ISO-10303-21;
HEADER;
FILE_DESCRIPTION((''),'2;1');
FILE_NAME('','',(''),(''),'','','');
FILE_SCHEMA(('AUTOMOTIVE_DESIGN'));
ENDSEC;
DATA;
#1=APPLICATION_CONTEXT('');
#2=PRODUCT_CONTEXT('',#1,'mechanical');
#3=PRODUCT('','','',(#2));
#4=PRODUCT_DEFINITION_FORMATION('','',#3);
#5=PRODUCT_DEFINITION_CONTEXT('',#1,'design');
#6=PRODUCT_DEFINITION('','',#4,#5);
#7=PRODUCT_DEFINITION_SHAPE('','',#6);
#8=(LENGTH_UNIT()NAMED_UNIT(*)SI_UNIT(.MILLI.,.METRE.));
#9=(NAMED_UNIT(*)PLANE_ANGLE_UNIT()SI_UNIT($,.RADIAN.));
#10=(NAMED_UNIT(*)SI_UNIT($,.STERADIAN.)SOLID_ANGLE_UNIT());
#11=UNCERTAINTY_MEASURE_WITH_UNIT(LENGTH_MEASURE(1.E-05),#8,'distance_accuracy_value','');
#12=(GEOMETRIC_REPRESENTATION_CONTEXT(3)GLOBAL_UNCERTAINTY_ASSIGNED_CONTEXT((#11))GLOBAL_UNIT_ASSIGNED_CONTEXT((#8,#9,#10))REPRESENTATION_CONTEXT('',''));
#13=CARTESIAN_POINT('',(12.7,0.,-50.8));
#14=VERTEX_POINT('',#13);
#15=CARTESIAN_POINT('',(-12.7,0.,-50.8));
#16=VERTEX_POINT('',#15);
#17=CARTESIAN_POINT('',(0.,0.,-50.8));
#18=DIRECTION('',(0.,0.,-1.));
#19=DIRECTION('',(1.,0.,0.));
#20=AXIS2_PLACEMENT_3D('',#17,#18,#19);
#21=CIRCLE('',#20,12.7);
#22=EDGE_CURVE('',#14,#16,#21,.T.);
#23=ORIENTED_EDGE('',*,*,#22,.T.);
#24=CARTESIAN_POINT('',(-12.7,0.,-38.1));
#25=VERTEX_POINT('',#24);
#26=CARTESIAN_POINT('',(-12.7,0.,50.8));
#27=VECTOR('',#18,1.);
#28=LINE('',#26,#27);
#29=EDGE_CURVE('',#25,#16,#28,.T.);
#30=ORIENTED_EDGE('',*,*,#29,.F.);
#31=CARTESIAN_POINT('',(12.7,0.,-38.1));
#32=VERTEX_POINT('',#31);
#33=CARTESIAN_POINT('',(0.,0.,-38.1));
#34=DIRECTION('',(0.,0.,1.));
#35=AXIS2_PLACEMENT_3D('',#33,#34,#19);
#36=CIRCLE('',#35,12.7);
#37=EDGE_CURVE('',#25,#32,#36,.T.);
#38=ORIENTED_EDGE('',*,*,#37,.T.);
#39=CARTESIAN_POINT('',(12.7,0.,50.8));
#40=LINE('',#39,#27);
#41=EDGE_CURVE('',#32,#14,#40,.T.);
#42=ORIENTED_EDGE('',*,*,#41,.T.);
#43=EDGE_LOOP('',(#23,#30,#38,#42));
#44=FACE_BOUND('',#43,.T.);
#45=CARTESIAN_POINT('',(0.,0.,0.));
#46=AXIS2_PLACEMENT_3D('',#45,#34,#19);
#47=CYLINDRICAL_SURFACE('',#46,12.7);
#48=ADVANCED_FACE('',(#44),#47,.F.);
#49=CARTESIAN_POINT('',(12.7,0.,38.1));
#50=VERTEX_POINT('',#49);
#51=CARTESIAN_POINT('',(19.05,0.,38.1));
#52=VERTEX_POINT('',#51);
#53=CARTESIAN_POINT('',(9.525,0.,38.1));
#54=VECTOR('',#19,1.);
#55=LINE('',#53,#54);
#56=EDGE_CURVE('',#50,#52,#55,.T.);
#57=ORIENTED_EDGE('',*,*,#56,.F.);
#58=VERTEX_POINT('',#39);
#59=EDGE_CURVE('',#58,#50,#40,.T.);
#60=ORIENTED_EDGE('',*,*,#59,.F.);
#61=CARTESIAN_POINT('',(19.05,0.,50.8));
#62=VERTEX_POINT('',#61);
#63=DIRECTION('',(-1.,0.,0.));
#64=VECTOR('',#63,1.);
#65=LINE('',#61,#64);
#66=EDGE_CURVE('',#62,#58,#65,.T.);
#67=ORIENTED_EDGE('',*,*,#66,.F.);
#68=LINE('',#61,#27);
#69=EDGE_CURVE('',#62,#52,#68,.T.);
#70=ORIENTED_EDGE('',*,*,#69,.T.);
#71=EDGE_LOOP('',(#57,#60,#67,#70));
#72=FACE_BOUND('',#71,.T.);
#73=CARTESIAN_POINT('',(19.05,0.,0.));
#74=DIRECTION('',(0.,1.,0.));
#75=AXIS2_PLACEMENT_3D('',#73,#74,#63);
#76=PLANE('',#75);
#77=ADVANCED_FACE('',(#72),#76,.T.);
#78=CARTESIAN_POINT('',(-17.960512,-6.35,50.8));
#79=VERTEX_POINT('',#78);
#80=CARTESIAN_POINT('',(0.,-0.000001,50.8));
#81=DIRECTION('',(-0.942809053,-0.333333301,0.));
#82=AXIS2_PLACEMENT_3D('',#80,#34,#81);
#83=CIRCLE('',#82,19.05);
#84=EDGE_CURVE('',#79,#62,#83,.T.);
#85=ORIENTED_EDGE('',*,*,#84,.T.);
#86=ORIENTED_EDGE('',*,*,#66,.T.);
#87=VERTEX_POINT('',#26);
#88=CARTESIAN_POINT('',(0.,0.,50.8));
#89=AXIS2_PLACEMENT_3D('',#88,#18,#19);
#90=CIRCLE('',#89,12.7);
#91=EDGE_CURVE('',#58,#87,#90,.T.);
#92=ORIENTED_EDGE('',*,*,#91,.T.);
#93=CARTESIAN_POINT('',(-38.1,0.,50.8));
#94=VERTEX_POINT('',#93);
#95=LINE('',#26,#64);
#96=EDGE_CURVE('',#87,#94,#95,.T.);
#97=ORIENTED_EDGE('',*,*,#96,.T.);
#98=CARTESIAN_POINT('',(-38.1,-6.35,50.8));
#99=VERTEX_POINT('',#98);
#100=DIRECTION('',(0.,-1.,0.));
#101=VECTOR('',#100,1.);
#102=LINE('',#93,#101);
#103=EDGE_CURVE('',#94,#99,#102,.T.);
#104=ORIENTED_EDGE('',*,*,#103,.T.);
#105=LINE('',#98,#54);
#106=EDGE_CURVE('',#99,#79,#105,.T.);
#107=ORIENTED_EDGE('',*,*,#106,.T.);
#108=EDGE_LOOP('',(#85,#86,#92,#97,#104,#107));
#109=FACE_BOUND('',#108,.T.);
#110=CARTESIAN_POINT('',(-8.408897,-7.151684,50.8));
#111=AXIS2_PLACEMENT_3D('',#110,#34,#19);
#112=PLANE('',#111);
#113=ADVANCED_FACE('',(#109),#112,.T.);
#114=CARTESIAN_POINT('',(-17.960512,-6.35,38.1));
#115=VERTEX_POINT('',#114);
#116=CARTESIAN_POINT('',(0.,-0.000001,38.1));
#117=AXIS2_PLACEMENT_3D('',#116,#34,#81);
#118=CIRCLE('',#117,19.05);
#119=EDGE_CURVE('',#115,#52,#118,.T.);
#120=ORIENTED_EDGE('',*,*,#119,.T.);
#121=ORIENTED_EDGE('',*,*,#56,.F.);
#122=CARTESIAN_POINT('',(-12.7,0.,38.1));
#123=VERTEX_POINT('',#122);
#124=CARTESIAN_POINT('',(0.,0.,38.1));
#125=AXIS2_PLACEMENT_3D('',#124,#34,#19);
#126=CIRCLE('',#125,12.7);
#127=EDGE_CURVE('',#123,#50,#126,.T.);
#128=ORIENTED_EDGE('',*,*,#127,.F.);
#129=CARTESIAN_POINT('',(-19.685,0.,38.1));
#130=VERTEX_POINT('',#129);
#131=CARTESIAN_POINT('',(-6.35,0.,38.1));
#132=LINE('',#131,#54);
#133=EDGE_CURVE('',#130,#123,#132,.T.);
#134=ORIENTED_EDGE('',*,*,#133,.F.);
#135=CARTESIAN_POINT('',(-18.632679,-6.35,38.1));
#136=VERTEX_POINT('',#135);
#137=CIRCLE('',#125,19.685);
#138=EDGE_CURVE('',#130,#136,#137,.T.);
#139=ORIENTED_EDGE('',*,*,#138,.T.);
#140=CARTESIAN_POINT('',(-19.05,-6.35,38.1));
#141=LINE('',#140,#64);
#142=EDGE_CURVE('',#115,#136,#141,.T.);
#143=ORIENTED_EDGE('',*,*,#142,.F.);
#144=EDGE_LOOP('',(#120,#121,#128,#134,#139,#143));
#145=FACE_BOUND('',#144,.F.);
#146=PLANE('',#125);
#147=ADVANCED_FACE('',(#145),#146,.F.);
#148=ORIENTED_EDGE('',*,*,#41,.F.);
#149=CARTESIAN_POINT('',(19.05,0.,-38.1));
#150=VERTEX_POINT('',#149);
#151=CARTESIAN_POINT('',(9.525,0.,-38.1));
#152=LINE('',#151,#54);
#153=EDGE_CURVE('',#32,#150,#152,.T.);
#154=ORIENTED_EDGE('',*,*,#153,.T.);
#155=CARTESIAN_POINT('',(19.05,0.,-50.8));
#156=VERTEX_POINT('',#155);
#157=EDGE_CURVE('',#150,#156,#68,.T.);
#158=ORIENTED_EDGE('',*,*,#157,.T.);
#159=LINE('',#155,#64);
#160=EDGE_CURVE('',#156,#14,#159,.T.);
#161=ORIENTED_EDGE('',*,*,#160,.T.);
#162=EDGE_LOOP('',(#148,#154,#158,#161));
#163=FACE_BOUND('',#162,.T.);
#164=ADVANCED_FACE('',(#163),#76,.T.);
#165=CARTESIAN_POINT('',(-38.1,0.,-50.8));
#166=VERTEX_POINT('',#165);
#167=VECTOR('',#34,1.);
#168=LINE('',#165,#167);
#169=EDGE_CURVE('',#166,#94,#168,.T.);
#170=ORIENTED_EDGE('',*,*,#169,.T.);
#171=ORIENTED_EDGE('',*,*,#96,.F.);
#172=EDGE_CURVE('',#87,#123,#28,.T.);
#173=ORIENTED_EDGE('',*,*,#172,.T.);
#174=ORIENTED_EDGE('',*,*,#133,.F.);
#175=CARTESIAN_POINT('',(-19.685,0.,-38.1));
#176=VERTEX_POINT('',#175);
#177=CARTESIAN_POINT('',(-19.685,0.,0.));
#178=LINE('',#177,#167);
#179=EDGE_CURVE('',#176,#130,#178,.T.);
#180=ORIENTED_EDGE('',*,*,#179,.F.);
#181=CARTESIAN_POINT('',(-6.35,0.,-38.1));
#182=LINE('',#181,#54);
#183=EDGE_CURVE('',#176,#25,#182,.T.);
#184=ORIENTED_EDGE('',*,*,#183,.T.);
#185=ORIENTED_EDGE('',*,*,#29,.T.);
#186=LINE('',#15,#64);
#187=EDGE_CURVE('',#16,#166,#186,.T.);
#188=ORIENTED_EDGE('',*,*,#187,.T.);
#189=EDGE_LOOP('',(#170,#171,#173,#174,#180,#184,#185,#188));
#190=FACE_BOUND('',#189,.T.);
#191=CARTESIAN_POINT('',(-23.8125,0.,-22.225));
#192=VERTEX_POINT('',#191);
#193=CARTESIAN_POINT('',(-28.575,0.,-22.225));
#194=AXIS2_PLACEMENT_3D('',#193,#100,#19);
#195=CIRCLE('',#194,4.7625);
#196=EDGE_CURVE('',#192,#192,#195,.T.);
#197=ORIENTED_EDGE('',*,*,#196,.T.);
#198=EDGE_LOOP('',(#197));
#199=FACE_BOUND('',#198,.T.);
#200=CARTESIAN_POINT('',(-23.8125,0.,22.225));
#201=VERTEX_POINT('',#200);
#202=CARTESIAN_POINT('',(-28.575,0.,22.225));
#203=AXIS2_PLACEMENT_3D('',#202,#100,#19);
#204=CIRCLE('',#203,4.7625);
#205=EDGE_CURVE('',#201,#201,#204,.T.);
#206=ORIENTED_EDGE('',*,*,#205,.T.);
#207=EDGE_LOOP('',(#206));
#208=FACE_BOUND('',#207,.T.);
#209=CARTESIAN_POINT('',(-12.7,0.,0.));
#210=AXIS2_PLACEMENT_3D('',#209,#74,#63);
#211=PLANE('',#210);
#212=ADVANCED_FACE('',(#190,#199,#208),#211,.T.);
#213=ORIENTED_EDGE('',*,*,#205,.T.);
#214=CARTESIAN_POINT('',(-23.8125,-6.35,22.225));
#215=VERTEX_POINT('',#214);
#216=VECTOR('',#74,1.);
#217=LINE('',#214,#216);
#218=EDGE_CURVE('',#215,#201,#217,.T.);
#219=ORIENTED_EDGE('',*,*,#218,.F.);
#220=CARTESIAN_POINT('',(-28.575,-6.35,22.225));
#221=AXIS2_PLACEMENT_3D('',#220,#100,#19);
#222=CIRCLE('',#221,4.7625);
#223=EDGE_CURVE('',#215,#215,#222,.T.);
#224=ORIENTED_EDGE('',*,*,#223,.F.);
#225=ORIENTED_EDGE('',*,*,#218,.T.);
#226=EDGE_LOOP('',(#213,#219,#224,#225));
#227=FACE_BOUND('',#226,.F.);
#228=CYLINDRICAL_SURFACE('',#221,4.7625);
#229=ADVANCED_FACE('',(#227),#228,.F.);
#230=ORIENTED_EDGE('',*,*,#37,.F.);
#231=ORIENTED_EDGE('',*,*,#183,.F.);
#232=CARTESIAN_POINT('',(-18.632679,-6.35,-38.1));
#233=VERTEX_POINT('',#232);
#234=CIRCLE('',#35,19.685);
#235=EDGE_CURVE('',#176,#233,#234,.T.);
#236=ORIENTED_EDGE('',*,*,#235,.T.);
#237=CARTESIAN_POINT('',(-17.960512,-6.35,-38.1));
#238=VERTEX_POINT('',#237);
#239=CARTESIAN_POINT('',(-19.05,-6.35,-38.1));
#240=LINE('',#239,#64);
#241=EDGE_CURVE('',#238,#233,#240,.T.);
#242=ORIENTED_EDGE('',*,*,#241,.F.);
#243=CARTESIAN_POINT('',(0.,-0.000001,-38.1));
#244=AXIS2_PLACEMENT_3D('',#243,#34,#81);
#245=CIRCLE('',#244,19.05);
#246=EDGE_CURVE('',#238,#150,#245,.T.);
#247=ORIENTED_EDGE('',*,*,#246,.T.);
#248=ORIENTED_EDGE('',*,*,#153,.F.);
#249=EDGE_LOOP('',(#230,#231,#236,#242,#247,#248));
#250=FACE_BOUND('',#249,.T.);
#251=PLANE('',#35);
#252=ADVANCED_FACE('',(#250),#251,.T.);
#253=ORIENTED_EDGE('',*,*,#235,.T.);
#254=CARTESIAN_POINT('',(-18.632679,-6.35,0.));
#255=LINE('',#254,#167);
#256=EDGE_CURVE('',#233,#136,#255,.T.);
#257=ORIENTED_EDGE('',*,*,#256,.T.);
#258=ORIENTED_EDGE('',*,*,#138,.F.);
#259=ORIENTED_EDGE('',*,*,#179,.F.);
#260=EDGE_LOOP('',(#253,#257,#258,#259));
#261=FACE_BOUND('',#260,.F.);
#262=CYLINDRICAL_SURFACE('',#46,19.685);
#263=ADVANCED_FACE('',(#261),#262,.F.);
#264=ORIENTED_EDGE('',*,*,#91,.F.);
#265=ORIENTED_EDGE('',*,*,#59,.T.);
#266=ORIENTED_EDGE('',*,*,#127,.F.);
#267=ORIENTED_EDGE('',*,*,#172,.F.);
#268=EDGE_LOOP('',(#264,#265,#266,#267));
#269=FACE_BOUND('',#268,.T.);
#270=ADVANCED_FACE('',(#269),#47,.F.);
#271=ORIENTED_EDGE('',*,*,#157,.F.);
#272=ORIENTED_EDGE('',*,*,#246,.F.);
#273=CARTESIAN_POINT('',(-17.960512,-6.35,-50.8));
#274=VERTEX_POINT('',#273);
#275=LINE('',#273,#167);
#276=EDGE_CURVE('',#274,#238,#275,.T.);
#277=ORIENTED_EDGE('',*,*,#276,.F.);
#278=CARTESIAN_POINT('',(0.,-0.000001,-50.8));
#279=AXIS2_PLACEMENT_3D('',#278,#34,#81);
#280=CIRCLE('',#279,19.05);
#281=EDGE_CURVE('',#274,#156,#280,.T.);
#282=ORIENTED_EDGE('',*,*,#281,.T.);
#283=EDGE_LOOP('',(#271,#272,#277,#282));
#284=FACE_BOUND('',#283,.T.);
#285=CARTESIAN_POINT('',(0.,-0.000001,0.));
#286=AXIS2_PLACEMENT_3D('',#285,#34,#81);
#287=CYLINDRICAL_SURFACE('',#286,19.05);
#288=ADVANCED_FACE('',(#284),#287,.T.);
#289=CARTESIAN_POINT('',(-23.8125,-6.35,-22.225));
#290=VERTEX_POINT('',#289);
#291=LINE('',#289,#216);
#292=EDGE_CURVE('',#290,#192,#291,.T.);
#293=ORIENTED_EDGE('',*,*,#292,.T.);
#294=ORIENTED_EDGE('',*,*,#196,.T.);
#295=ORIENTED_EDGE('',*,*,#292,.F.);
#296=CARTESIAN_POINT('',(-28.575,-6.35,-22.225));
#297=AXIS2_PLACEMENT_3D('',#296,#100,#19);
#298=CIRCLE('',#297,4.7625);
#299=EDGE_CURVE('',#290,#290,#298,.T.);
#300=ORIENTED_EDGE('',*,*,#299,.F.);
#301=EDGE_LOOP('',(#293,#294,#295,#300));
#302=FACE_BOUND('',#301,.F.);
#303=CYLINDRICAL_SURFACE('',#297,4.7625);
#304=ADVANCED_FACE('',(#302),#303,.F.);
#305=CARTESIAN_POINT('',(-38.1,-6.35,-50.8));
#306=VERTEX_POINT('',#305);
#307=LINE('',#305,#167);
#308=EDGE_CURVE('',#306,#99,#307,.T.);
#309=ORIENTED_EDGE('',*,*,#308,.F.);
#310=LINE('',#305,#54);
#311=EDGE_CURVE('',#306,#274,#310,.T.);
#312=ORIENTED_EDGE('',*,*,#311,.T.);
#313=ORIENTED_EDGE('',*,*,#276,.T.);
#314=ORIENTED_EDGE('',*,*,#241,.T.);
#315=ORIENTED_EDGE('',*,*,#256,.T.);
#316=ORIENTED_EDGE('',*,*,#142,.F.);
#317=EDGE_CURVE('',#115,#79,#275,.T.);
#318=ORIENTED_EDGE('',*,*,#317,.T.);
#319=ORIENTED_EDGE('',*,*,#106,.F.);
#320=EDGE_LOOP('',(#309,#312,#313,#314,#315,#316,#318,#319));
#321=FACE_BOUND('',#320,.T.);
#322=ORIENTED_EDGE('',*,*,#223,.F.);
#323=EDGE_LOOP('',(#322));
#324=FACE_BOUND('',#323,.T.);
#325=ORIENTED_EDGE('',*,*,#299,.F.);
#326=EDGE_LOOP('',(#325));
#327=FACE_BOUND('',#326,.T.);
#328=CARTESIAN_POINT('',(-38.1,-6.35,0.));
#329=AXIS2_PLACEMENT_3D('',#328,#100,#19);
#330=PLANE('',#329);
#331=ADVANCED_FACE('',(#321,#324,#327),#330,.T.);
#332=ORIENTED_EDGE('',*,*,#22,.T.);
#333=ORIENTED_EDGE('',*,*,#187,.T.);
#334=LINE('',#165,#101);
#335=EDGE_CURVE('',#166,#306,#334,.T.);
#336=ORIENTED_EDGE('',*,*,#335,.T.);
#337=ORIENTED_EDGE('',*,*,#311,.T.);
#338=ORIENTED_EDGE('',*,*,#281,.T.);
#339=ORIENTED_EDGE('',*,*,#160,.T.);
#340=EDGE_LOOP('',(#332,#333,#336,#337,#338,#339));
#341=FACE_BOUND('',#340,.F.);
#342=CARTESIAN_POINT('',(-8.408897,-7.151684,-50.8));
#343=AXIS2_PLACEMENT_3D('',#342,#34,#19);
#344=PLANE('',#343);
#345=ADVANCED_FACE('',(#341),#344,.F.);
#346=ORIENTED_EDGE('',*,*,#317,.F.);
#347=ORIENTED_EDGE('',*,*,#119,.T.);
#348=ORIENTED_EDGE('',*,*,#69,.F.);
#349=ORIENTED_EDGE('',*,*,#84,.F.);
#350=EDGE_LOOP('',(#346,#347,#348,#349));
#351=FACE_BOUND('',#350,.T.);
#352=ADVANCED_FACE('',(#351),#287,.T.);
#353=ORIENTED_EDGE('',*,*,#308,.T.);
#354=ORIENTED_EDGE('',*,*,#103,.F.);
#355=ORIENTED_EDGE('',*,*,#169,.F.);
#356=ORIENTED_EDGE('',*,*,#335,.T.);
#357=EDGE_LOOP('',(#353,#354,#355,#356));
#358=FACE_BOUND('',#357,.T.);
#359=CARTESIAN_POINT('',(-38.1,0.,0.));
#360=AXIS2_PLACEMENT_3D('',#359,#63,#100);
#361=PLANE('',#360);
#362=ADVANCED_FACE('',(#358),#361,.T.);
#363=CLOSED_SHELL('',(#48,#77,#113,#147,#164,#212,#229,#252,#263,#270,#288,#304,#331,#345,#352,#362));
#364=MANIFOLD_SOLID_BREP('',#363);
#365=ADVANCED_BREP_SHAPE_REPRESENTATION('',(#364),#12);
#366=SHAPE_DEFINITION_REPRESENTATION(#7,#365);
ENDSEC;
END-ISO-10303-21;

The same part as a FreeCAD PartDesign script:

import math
import FreeCAD as App
import Part
import Sketcher
Q = App.Units.Quantity

doc = App.newDocument("Part")
body = doc.addObject("PartDesign::Body", "Body")

# Sketch on XY plane
sketch1 = body.newObject("Sketcher::SketchObject", "Sketch")
sketch1.AttachmentSupport = (doc.getObject("XY_Plane"), [""])
sketch1.MapMode = "FlatFace"
sketch1.addGeometry([
    Part.LineSegment(App.Vector(-13, 0, 0), App.Vector(-38, 0, 0)),  # 0
    Part.LineSegment(App.Vector(-38, 0, 0), App.Vector(-38, -6, 0)),  # 1
    Part.LineSegment(App.Vector(-38, -6, 0), App.Vector(-18, -6, 0)),  # 2
    Part.ArcOfCircle(Part.Circle(App.Vector(0, 0, 0), App.Vector(0, 0, 1), 19), math.radians(-161), math.radians(0)),  # 3
    Part.LineSegment(App.Vector(19, 0, 0), App.Vector(13, 0, 0)),  # 4
    Part.ArcOfCircle(Part.Circle(App.Vector(0, 0, 0), App.Vector(0, 0, 1), 13), math.radians(180), math.radians(360)),  # 5
], False)
sketch1.addConstraint([
    Sketcher.Constraint("Coincident", 0, 2, 1, 1),
    Sketcher.Constraint("Coincident", 1, 2, 2, 1),
    Sketcher.Constraint("Coincident", 2, 2, 3, 1),
    Sketcher.Constraint("Coincident", 3, 2, 4, 1),
    Sketcher.Constraint("Coincident", 4, 2, 5, 2),
    Sketcher.Constraint("Coincident", 5, 1, 0, 1),
    Sketcher.Constraint("Horizontal", 0),
    Sketcher.Constraint("Vertical", 1),
    Sketcher.Constraint("Horizontal", 2),
    Sketcher.Constraint("Horizontal", 4),
    Sketcher.Constraint("Coincident", 3, 3, -1, 1),
    Sketcher.Constraint("Coincident", 5, 3, -1, 1),
    Sketcher.Constraint("PointOnObject", 0, 2, -1),
    Sketcher.Constraint("PointOnObject", 3, 2, -1),
    Sketcher.Constraint("Equal", 4, 1),
    Sketcher.Constraint("Radius", 5, Q("0.5 in")),
    Sketcher.Constraint("DistanceX", 0, 2, 0, 1, Q("1 in")),
    Sketcher.Constraint("Radius", 3, Q("0.75 in")),
])
pad1 = body.newObject("PartDesign::Pad", "Pad")
pad1.Profile = sketch1
pad1.Length = Q("4 in")
pad1.Midplane = True

# Sketch on XY plane
sketch2 = body.newObject("Sketcher::SketchObject", "Sketch001")
sketch2.AttachmentSupport = (doc.getObject("XY_Plane"), [""])
sketch2.MapMode = "FlatFace"
sketch2.addGeometry(Part.Circle(App.Vector(0, 0, 0), App.Vector(0, 0, 1), 20), False)
sketch2.addConstraint([
    Sketcher.Constraint("Coincident", 0, 3, -1, 1),
    Sketcher.Constraint("Diameter", 0, Q("1.55 in")),
])
pocket1 = body.newObject("PartDesign::Pocket", "Pocket")
pocket1.Profile = sketch2
pocket1.Length = Q("3 in")
pocket1.Midplane = True

# Sketch on XZ plane
sketch3 = body.newObject("Sketcher::SketchObject", "Sketch002")
sketch3.AttachmentSupport = (doc.getObject("XZ_Plane"), [""])
sketch3.MapMode = "FlatFace"
sketch3.AttachmentOffset = App.Placement(App.Vector(0, 0, 0.25 * 25.4), App.Rotation())
sketch3.addGeometry([
    Part.Circle(App.Vector(-28.6, 22.2, 0), App.Vector(0, 0, 1), 4.8),
    Part.Circle(App.Vector(-28.6, -22.2, 0), App.Vector(0, 0, 1), 4.8),
], False)
sketch3.addConstraint([
    Sketcher.Constraint("Equal", 0, 1),
    Sketcher.Constraint("Symmetric", 0, 3, 1, 3, -1),
    Sketcher.Constraint("Diameter", 0, Q("0.375 in")),
    Sketcher.Constraint("DistanceY", 1, 3, 0, 3, Q("1.75 in")),
    Sketcher.Constraint("DistanceX", 0, 3, -1, 1, Q("1.125 in")),
])
pocket2 = body.newObject("PartDesign::Pocket", "Pocket001")
pocket2.Profile = sketch3
pocket2.Length = Q("0.5 in")

doc.recompute()
